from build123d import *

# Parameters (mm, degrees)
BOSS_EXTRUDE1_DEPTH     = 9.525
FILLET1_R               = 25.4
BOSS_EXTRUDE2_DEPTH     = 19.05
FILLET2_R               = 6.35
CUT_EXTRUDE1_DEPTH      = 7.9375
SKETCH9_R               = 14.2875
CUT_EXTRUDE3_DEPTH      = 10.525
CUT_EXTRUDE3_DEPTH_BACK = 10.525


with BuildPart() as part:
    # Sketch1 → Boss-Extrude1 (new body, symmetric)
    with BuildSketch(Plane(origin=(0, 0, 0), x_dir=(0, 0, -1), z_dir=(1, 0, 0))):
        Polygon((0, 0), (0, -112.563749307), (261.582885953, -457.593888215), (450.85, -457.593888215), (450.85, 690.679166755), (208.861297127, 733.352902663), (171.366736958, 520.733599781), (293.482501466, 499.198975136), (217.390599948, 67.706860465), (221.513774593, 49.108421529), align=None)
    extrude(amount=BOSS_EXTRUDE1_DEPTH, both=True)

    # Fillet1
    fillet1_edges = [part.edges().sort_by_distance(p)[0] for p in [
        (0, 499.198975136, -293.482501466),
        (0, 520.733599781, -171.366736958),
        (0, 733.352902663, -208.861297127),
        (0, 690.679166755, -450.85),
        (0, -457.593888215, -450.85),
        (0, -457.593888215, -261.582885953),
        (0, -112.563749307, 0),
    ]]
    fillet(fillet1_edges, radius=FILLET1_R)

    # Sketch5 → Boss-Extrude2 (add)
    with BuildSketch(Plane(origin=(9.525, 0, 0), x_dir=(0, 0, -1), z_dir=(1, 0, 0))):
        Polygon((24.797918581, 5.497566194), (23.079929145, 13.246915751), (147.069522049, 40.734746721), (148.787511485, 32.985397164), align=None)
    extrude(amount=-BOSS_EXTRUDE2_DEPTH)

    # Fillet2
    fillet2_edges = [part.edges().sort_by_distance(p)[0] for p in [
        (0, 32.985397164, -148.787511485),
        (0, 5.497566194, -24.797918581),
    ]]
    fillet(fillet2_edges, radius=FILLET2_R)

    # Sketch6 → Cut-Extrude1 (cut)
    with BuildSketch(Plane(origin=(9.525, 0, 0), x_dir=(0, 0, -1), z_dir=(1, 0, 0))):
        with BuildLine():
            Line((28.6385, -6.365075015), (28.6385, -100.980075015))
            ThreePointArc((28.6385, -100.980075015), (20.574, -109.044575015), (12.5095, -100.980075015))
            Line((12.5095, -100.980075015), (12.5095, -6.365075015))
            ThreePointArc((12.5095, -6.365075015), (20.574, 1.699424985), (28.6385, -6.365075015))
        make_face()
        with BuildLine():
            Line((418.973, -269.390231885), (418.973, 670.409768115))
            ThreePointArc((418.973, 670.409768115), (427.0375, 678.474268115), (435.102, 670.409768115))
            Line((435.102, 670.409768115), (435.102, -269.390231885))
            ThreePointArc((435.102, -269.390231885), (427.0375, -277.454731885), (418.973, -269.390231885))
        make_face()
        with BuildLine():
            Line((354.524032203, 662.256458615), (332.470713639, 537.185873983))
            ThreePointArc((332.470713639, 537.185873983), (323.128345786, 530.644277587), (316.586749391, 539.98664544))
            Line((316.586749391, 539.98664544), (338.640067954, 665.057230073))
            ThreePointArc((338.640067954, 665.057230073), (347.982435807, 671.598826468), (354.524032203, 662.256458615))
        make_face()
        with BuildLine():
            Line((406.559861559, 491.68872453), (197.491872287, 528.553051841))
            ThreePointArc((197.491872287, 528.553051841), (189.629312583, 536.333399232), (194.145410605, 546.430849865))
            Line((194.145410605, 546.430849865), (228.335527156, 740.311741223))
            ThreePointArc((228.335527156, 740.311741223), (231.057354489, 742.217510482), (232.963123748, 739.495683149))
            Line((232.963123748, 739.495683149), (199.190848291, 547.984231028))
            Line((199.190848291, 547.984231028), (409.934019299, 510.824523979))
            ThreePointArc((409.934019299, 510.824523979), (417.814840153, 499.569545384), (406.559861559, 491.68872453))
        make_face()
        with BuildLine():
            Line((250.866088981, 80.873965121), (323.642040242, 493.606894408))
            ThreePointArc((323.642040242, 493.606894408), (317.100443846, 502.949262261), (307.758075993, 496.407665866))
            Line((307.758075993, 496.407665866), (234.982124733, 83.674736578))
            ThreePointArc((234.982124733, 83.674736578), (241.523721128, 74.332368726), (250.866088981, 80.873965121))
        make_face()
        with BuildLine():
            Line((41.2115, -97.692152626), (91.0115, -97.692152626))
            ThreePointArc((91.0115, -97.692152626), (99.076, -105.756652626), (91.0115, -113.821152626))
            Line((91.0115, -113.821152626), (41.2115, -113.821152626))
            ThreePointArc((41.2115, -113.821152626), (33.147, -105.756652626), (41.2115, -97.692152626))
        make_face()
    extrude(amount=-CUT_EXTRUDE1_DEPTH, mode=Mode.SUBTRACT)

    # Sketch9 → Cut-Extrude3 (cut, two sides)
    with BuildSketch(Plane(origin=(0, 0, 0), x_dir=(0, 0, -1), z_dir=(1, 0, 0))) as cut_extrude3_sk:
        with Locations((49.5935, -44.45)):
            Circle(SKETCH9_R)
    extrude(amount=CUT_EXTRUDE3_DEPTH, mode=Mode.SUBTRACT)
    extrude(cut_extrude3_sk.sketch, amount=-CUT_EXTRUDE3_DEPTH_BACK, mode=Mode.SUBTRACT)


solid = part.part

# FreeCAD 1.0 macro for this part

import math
import FreeCAD as App
import Part
import Sketcher
Q = App.Units.Quantity


def edges_at(feature, points):
    """Names of the edges that pass closest to the given points."""
    edges = feature.Shape.Edges
    near = lambda p: min(range(len(edges)), key=lambda i: edges[i].distToShape(Part.Vertex(*p))[0])
    return sorted({f"Edge{near(p) + 1}" for p in points})

doc = App.newDocument("Part")
params = doc.addObject("Spreadsheet::Sheet", "Params")
for row, (alias, value) in enumerate([
    ("sketch1_length", "8.5 in"),
    ("sketch1_length2", "17.25 in"),
    ("sketch1_length3", "0.75 in"),
    ("pad1_length", "0.75 in"),
    ("fillet_radius", "1 in"),
    ("sketch2_length", "5 in"),
    ("sketch2_length2", "0.3125 in"),
    ("pad2_length", "0.75 in"),
    ("fillet2_radius", "0.25 in"),
    ("sketch3_width", "37 in"),
    ("sketch3_width2", "37 in"),
    ("sketch3_length", "5 in"),
    ("sketch3_length2", "5 in"),
    ("sketch3_length3", "16.5 in"),
    ("pocket1_length", "0.3125 in"),
    ("sketch4_diameter", "1.125 in"),
], start=1):
    params.set(f"A{row}", alias)
    params.set(f"B{row}", "=" + value)
    params.setAlias(f"B{row}", alias)

body = doc.addObject("PartDesign::Body", "Body")

# Sketch on YZ plane
sketch1 = body.newObject("Sketcher::SketchObject", "Sketch")
sketch1.AttachmentSupport = (doc.getObject("YZ_Plane"), [""])
sketch1.MapMode = "FlatFace"
sketch1.addGeometry([
    Part.LineSegment(App.Vector(0, 0, 0), App.Vector(-112.563749, 0, 0)),  # 0
    Part.LineSegment(App.Vector(-112.563749, 0, 0), App.Vector(-457.593888, -261.582886, 0)),  # 1
    Part.LineSegment(App.Vector(-457.593888, -261.582886, 0), App.Vector(-457.593888, -450.85, 0)),  # 2
    Part.LineSegment(App.Vector(-457.593888, -450.85, 0), App.Vector(690.679167, -450.85, 0)),  # 3
    Part.LineSegment(App.Vector(690.679167, -450.85, 0), App.Vector(733.352903, -208.861297, 0)),  # 4
    Part.LineSegment(App.Vector(733.352903, -208.861297, 0), App.Vector(520.7336, -171.366737, 0)),  # 5
    Part.LineSegment(App.Vector(520.7336, -171.366737, 0), App.Vector(499.198975, -293.482501, 0)),  # 6
    Part.LineSegment(App.Vector(499.198975, -293.482501, 0), App.Vector(67.70686, -217.3906, 0)),  # 7
    Part.LineSegment(App.Vector(67.70686, -217.3906, 0), App.Vector(49.108422, -221.513775, 0)),  # 8
    Part.LineSegment(App.Vector(49.108422, -221.513775, 0), App.Vector(0, 0, 0)),  # 9
], False)
sketch1.addConstraint([
    Sketcher.Constraint("Coincident", 0, 2, 1, 1),
    Sketcher.Constraint("Coincident", 1, 2, 2, 1),
    Sketcher.Constraint("Coincident", 2, 2, 3, 1),
    Sketcher.Constraint("Coincident", 3, 2, 4, 1),
    Sketcher.Constraint("Coincident", 4, 2, 5, 1),
    Sketcher.Constraint("Coincident", 5, 2, 6, 1),
    Sketcher.Constraint("Coincident", 6, 2, 7, 1),
    Sketcher.Constraint("Coincident", 7, 2, 8, 1),
    Sketcher.Constraint("Coincident", 8, 2, 9, 1),
    Sketcher.Constraint("Coincident", 9, 2, 0, 1),
    Sketcher.Constraint("Horizontal", 0),
    Sketcher.Constraint("Vertical", 2),
    Sketcher.Constraint("Horizontal", 3),
    Sketcher.Constraint("Coincident", 9, 2, -1, 1),
    Sketcher.Constraint("Perpendicular", 4, 5),
    Sketcher.Constraint("Perpendicular", 5, 6),
    Sketcher.Constraint("Perpendicular", 6, 7),
    Sketcher.Constraint("Perpendicular", 8, 9),
    Sketcher.Constraint("Distance", 5, Q("8.5 in")),
    Sketcher.Constraint("Angle", 8, Q("-167.5 deg")),
    Sketcher.Constraint("Distance", 7, Q("17.25 in")),
    Sketcher.Constraint("Distance", 8, Q("0.75 in")),
    Sketcher.Constraint("DistanceY", 2, 2, -1, 1, Q("17.75 in")),
    Sketcher.Constraint("Distance", 6, 124.0),
    Sketcher.Constraint("DistanceX", 0, 2, 0, 1, 112.563749),
    Sketcher.Constraint("DistanceX", -1, 1, 5, 2, 520.7336),
    Sketcher.Constraint("DistanceY", 6, 2, -1, 1, 293.482501),
    Sketcher.Constraint("Distance", 1, 432.97968),
    Sketcher.Constraint("DistanceX", 3, 1, 3, 2, 1148.273055),
])
sketch1.setExpression("Constraints[18]", "Params.sketch1_length")
sketch1.setExpression("Constraints[20]", "Params.sketch1_length2")
sketch1.setExpression("Constraints[21]", "Params.sketch1_length3")
pad1 = body.newObject("PartDesign::Pad", "Pad")
pad1.Profile = sketch1
pad1.setExpression("Length", "Params.pad1_length")
pad1.Midplane = True
doc.recompute()

fillet = body.newObject("PartDesign::Fillet", "Fillet")
fillet.Base = (pad1, edges_at(pad1, [
    (0, 499.199, -293.483),
    (0, 520.734, -171.367),
    (0, 733.353, -208.861),
    (0, 690.679, -450.85),
    (0, -457.594, -450.85),
    (0, -457.594, -261.583),
    (0, -112.564, 0),
]))
fillet.setExpression("Radius", "Params.fillet_radius")

# Sketch on YZ plane
sketch2 = body.newObject("Sketcher::SketchObject", "Sketch001")
sketch2.AttachmentSupport = (doc.getObject("YZ_Plane"), [""])
sketch2.MapMode = "FlatFace"
sketch2.AttachmentOffset = App.Placement(App.Vector(0, 0, 0.375 * 25.4), App.Rotation())
sketch2.addGeometry([
    Part.LineSegment(App.Vector(13.246916, -23.079929, 0), App.Vector(5.497566, -24.797919, 0)),
    Part.LineSegment(App.Vector(5.497566, -24.797919, 0), App.Vector(32.985397, -148.787511, 0)),
    Part.LineSegment(App.Vector(32.985397, -148.787511, 0), App.Vector(40.734747, -147.069522, 0)),
    Part.LineSegment(App.Vector(40.734747, -147.069522, 0), App.Vector(13.246916, -23.079929, 0)),
], False)
sketch2.addConstraint([
    Sketcher.Constraint("Coincident", 0, 2, 1, 1),
    Sketcher.Constraint("Coincident", 1, 2, 2, 1),
    Sketcher.Constraint("Coincident", 2, 2, 3, 1),
    Sketcher.Constraint("Coincident", 3, 2, 0, 1),
    Sketcher.Constraint("Perpendicular", 0, 1),
    Sketcher.Constraint("Perpendicular", 1, 2),
    Sketcher.Constraint("Perpendicular", 2, 3),
    Sketcher.Constraint("Distance", 1, Q("5 in")),
    Sketcher.Constraint("Angle", 0, Q("-167.5 deg")),
    Sketcher.Constraint("Distance", 0, Q("0.3125 in")),
    Sketcher.Constraint("DistanceY", 0, 2, -1, 1, 24.797919),
    Sketcher.Constraint("DistanceX", -1, 1, 0, 2, 5.497566),
])
sketch2.setExpression("Constraints[7]", "Params.sketch2_length")
sketch2.setExpression("Constraints[9]", "Params.sketch2_length2")
pad2 = body.newObject("PartDesign::Pad", "Pad001")
pad2.Profile = sketch2
pad2.setExpression("Length", "Params.pad2_length")
pad2.Reversed = True
doc.recompute()

fillet2 = body.newObject("PartDesign::Fillet", "Fillet001")
fillet2.Base = (pad2, edges_at(pad2, [(0, 32.985, -148.788), (0, 5.498, -24.798)]))
fillet2.setExpression("Radius", "Params.fillet2_radius")

# Sketch on YZ plane
sketch3 = body.newObject("Sketcher::SketchObject", "Sketch002")
sketch3.AttachmentSupport = (doc.getObject("YZ_Plane"), [""])
sketch3.MapMode = "FlatFace"
sketch3.AttachmentOffset = App.Placement(App.Vector(0, 0, 0.375 * 25.4), App.Rotation())
sketch3.addGeometry([
    Part.LineSegment(App.Vector(-100.980075, -28.6385, 0), App.Vector(-6.365075, -28.6385, 0)),  # 0
    Part.ArcOfCircle(Part.Circle(App.Vector(-6.365075, -20.574, 0), App.Vector(0, 0, 1), 8.0645), math.radians(-90), math.radians(90)),  # 1
    Part.LineSegment(App.Vector(-6.365075, -12.5095, 0), App.Vector(-100.980075, -12.5095, 0)),  # 2
    Part.ArcOfCircle(Part.Circle(App.Vector(-100.980075, -20.574, 0), App.Vector(0, 0, 1), 8.0645), math.radians(90), math.radians(270)),  # 3
    Part.LineSegment(App.Vector(670.409768, -418.973, 0), App.Vector(-269.390232, -418.973, 0)),  # 4
    Part.ArcOfCircle(Part.Circle(App.Vector(-269.390232, -427.0375, 0), App.Vector(0, 0, 1), 8.0645), math.radians(90), math.radians(270)),  # 5
    Part.LineSegment(App.Vector(-269.390232, -435.102, 0), App.Vector(670.409768, -435.102, 0)),  # 6
    Part.ArcOfCircle(Part.Circle(App.Vector(670.409768, -427.0375, 0), App.Vector(0, 0, 1), 8.0645), math.radians(-90), math.radians(90)),  # 7
    Part.LineSegment(App.Vector(537.185874, -332.470714, 0), App.Vector(662.256459, -354.524032, 0)),  # 8
    Part.ArcOfCircle(Part.Circle(App.Vector(663.656844, -346.58205, 0), App.Vector(0, 0, 1), 8.0645), math.radians(-100), math.radians(80)),  # 9
    Part.LineSegment(App.Vector(665.05723, -338.640068, 0), App.Vector(539.986645, -316.586749, 0)),  # 10
    Part.ArcOfCircle(Part.Circle(App.Vector(538.58626, -324.528732, 0), App.Vector(0, 0, 1), 8.0645), math.radians(80), math.radians(260)),  # 11
    Part.LineSegment(App.Vector(528.553052, -197.491872, 0), App.Vector(491.688725, -406.559862, 0)),  # 12
    Part.ArcOfCircle(Part.Circle(App.Vector(501.256624, -408.24694, 0), App.Vector(0, 0, 1), 9.7155), math.radians(170), math.radians(350)),  # 13
    Part.LineSegment(App.Vector(510.824524, -409.934019, 0), App.Vector(547.984231, -199.190848, 0)),  # 14
    Part.LineSegment(App.Vector(547.984231, -199.190848, 0), App.Vector(739.495683, -232.963124, 0)),  # 15
    Part.ArcOfCircle(Part.Circle(App.Vector(739.903712, -230.649325, 0), App.Vector(0, 0, 1), 2.3495), math.radians(-100.001056), math.radians(79.998944)),  # 16
    Part.LineSegment(App.Vector(740.311741, -228.335527, 0), App.Vector(546.43085, -194.145411, 0)),  # 17
    Part.ArcOfCircle(Part.Circle(App.Vector(538.120952, -199.178951, 0), App.Vector(0, 0, 1), 9.7155), math.radians(31.204476), math.radians(170)),  # 18
    Part.LineSegment(App.Vector(80.873965, -250.866089, 0), App.Vector(493.606894, -323.64204, 0)),  # 19
    Part.ArcOfCircle(Part.Circle(App.Vector(495.00728, -315.700058, 0), App.Vector(0, 0, 1), 8.0645), math.radians(-100), math.radians(80)),  # 20
    Part.LineSegment(App.Vector(496.407666, -307.758076, 0), App.Vector(83.674737, -234.982125, 0)),  # 21
    Part.ArcOfCircle(Part.Circle(App.Vector(82.274351, -242.924107, 0), App.Vector(0, 0, 1), 8.0645), math.radians(80), math.radians(260)),  # 22
    Part.LineSegment(App.Vector(-97.692153, -91.0115, 0), App.Vector(-97.692153, -41.2115, 0)),  # 23
    Part.ArcOfCircle(Part.Circle(App.Vector(-105.756653, -41.2115, 0), App.Vector(0, 0, 1), 8.0645), math.radians(0), math.radians(180)),  # 24
    Part.LineSegment(App.Vector(-113.821153, -41.2115, 0), App.Vector(-113.821153, -91.0115, 0)),  # 25
    Part.ArcOfCircle(Part.Circle(App.Vector(-105.756653, -91.0115, 0), App.Vector(0, 0, 1), 8.0645), math.radians(180), math.radians(360)),  # 26
], False)
sketch3.addConstraint([
    Sketcher.Constraint("Coincident", 0, 2, 1, 1),
    Sketcher.Constraint("Coincident", 1, 2, 2, 1),
    Sketcher.Constraint("Coincident", 2, 2, 3, 1),
    Sketcher.Constraint("Coincident", 3, 2, 0, 1),
    Sketcher.Constraint("Coincident", 4, 2, 5, 1),
    Sketcher.Constraint("Coincident", 5, 2, 6, 1),
    Sketcher.Constraint("Coincident", 6, 2, 7, 1),
    Sketcher.Constraint("Coincident", 7, 2, 4, 1),
    Sketcher.Constraint("Coincident", 8, 2, 9, 1),
    Sketcher.Constraint("Coincident", 9, 2, 10, 1),
    Sketcher.Constraint("Coincident", 10, 2, 11, 1),
    Sketcher.Constraint("Coincident", 11, 2, 8, 1),
    Sketcher.Constraint("Coincident", 12, 2, 13, 1),
    Sketcher.Constraint("Coincident", 13, 2, 14, 1),
    Sketcher.Constraint("Coincident", 14, 2, 15, 1),
    Sketcher.Constraint("Coincident", 15, 2, 16, 1),
    Sketcher.Constraint("Coincident", 16, 2, 17, 1),
    Sketcher.Constraint("Coincident", 17, 2, 18, 1),
    Sketcher.Constraint("Coincident", 18, 2, 12, 1),
    Sketcher.Constraint("Coincident", 19, 2, 20, 1),
    Sketcher.Constraint("Coincident", 20, 2, 21, 1),
    Sketcher.Constraint("Coincident", 21, 2, 22, 1),
    Sketcher.Constraint("Coincident", 22, 2, 19, 1),
    Sketcher.Constraint("Coincident", 23, 2, 24, 1),
    Sketcher.Constraint("Coincident", 24, 2, 25, 1),
    Sketcher.Constraint("Coincident", 25, 2, 26, 1),
    Sketcher.Constraint("Coincident", 26, 2, 23, 1),
    Sketcher.Constraint("Horizontal", 0),
    Sketcher.Constraint("Horizontal", 2),
    Sketcher.Constraint("Horizontal", 4),
    Sketcher.Constraint("Horizontal", 6),
    Sketcher.Constraint("Vertical", 23),
    Sketcher.Constraint("Vertical", 25),
    Sketcher.Constraint("DistanceX", 4, 2, 4, 1, Q("37 in")),
    Sketcher.Constraint("DistanceX", 6, 1, 6, 2, Q("37 in")),
    Sketcher.Constraint("Distance", 8, Q("5 in")),
    Sketcher.Constraint("Distance", 10, Q("5 in")),
    Sketcher.Constraint("DistanceX", 5, 3, 7, 3, Q("37 in")),
    Sketcher.Constraint("Distance", 19, Q("16.5 in")),
    Sketcher.Constraint("Distance", 21, Q("16.5 in")),
    Sketcher.Constraint("Radius", 1, Q("0.3175 in")),
    Sketcher.Constraint("Radius", 5, Q("0.3175 in")),
    Sketcher.Constraint("Radius", 9, Q("0.3175 in")),
    Sketcher.Constraint("Radius", 11, Q("0.3175 in")),
    Sketcher.Constraint("Radius", 13, Q("0.3825 in")),
    Sketcher.Constraint("Radius", 16, Q("0.0925 in")),
    Sketcher.Constraint("Radius", 18, Q("0.3825 in")),
    Sketcher.Constraint("Radius", 20, Q("0.3175 in")),
    Sketcher.Constraint("Radius", 22, Q("0.3175 in")),
    Sketcher.Constraint("Radius", 24, Q("0.3175 in")),
    Sketcher.Constraint("DistanceX", 0, 1, 0, 2, Q("3.725 in")),
    Sketcher.Constraint("DistanceX", 2, 2, 2, 1, Q("3.725 in")),
    Sketcher.Constraint("DistanceY", 1, 3, -1, 1, Q("0.81 in")),
    Sketcher.Constraint("DistanceY", 5, 2, -1, 1, Q("17.13 in")),
    Sketcher.Constraint("DistanceY", 5, 3, 24, 3, Q("15.19 in")),
    Sketcher.Constraint("DistanceY", 23, 2, 2, 2, Q("1.13 in")),
    Sketcher.Constraint("DistanceY", 24, 2, 2, 2, Q("1.13 in")),
    Sketcher.Constraint("Distance", 12, Q("8.358 in")),
    Sketcher.Constraint("DistanceX", 3, 3, 1, 3, Q("3.725 in")),
    Sketcher.Constraint("DistanceX", 3, 3, 0, 2, Q("3.725 in")),
    Sketcher.Constraint("DistanceX", 3, 3, 1, 2, Q("3.725 in")),
    Sketcher.Constraint("DistanceY", 23, 1, 23, 2, 49.8),
    Sketcher.Constraint("DistanceY", 25, 2, 25, 1, 49.8),
    Sketcher.Constraint("DistanceY", 26, 3, -1, 1, 91.0115),
    Sketcher.Constraint("DistanceX", 1, 3, 13, 3, 507.621699),
    Sketcher.Constraint("DistanceY", 9, 3, 18, 3, 147.403099),
    Sketcher.Constraint("DistanceX", 11, 3, 8, 2, 123.670199),
    Sketcher.Constraint("DistanceY", 8, 2, 11, 3, 29.995301),
    Sketcher.Constraint("DistanceY", 10, 2, 18, 3, 117.407798),
    Sketcher.Constraint("DistanceX", 12, 2, 13, 3, 9.5679),
    Sketcher.Constraint("DistanceX", 13, 3, 13, 2, 9.5679),
    Sketcher.Constraint("DistanceY", 10, 2, 14, 2, 117.395901),
    Sketcher.Constraint("DistanceY", 15, 2, 16, 3, 2.313798),
    Sketcher.Constraint("DistanceY", 16, 3, 16, 2, 2.313798),
    Sketcher.Constraint("DistanceX", 18, 3, 17, 2, 8.309898),
    Sketcher.Constraint("DistanceX", 18, 2, 18, 3, 9.5679),
    Sketcher.Constraint("DistanceX", 5, 3, -1, 1, 269.390232),
    Sketcher.Constraint("DistanceY", 9, 3, -1, 1, 346.58205),
    Sketcher.Constraint("DistanceX", -1, 1, 11, 3, 538.58626),
    Sketcher.Constraint("DistanceY", 11, 3, -1, 1, 324.528732),
    Sketcher.Constraint("DistanceY", 13, 3, -1, 1, 408.24694),
    Sketcher.Constraint("DistanceX", -1, 1, 18, 3, 538.120952),
    Sketcher.Constraint("DistanceX", -1, 1, 20, 3, 495.00728),
    Sketcher.Constraint("DistanceY", 20, 3, -1, 1, 315.700058),
    Sketcher.Constraint("DistanceX", -1, 1, 22, 3, 82.274351),
    Sketcher.Constraint("DistanceX", 4, 2, -1, 1, 269.390232),
    Sketcher.Constraint("DistanceX", 5, 2, -1, 1, 269.390232),
    Sketcher.Constraint("DistanceX", -1, 1, 14, 2, 547.984231),
    Sketcher.Constraint("DistanceX", -1, 1, 16, 2, 740.311741),
    Sketcher.Constraint("DistanceY", 19, 2, -1, 1, 323.64204),
    Sketcher.Constraint("DistanceY", 22, 2, -1, 1, 250.866089),
    Sketcher.Constraint("DistanceX", 5, 3, 24, 3, 163.633579),
    Sketcher.Constraint("DistanceY", 8, 2, 15, 2, 121.560908),
    Sketcher.Constraint("DistanceX", 19, 2, 20, 2, 2.800771),
])
sketch3.setExpression("Constraints[33]", "Params.sketch3_width")
sketch3.setExpression("Constraints[34]", "Params.sketch3_width2")
sketch3.setExpression("Constraints[35]", "Params.sketch3_length")
sketch3.setExpression("Constraints[36]", "Params.sketch3_length2")
sketch3.setExpression("Constraints[38]", "Params.sketch3_length3")
pocket1 = body.newObject("PartDesign::Pocket", "Pocket")
pocket1.Profile = sketch3
pocket1.setExpression("Length", "Params.pocket1_length")

# Sketch on YZ plane
sketch4 = body.newObject("Sketcher::SketchObject", "Sketch003")
sketch4.AttachmentSupport = (doc.getObject("YZ_Plane"), [""])
sketch4.MapMode = "FlatFace"
sketch4.addGeometry(Part.Circle(App.Vector(-44.45, -49.5935, 0), App.Vector(0, 0, 1), 14.2875), False)
sketch4.addConstraint([
    Sketcher.Constraint("Diameter", 0, Q("1.125 in")),
    Sketcher.Constraint("DistanceX", 0, 3, -1, 1, Q("1.75 in")),
    Sketcher.Constraint("DistanceY", 0, 3, -1, 1, Q("1.9525 in")),
])
sketch4.setExpression("Constraints[0]", "Params.sketch4_diameter")
pocket2 = body.newObject("PartDesign::Pocket", "Pocket001")
pocket2.Profile = sketch4
pocket2.Type = "ThroughAll"
pocket2.Midplane = True

doc.recompute()
